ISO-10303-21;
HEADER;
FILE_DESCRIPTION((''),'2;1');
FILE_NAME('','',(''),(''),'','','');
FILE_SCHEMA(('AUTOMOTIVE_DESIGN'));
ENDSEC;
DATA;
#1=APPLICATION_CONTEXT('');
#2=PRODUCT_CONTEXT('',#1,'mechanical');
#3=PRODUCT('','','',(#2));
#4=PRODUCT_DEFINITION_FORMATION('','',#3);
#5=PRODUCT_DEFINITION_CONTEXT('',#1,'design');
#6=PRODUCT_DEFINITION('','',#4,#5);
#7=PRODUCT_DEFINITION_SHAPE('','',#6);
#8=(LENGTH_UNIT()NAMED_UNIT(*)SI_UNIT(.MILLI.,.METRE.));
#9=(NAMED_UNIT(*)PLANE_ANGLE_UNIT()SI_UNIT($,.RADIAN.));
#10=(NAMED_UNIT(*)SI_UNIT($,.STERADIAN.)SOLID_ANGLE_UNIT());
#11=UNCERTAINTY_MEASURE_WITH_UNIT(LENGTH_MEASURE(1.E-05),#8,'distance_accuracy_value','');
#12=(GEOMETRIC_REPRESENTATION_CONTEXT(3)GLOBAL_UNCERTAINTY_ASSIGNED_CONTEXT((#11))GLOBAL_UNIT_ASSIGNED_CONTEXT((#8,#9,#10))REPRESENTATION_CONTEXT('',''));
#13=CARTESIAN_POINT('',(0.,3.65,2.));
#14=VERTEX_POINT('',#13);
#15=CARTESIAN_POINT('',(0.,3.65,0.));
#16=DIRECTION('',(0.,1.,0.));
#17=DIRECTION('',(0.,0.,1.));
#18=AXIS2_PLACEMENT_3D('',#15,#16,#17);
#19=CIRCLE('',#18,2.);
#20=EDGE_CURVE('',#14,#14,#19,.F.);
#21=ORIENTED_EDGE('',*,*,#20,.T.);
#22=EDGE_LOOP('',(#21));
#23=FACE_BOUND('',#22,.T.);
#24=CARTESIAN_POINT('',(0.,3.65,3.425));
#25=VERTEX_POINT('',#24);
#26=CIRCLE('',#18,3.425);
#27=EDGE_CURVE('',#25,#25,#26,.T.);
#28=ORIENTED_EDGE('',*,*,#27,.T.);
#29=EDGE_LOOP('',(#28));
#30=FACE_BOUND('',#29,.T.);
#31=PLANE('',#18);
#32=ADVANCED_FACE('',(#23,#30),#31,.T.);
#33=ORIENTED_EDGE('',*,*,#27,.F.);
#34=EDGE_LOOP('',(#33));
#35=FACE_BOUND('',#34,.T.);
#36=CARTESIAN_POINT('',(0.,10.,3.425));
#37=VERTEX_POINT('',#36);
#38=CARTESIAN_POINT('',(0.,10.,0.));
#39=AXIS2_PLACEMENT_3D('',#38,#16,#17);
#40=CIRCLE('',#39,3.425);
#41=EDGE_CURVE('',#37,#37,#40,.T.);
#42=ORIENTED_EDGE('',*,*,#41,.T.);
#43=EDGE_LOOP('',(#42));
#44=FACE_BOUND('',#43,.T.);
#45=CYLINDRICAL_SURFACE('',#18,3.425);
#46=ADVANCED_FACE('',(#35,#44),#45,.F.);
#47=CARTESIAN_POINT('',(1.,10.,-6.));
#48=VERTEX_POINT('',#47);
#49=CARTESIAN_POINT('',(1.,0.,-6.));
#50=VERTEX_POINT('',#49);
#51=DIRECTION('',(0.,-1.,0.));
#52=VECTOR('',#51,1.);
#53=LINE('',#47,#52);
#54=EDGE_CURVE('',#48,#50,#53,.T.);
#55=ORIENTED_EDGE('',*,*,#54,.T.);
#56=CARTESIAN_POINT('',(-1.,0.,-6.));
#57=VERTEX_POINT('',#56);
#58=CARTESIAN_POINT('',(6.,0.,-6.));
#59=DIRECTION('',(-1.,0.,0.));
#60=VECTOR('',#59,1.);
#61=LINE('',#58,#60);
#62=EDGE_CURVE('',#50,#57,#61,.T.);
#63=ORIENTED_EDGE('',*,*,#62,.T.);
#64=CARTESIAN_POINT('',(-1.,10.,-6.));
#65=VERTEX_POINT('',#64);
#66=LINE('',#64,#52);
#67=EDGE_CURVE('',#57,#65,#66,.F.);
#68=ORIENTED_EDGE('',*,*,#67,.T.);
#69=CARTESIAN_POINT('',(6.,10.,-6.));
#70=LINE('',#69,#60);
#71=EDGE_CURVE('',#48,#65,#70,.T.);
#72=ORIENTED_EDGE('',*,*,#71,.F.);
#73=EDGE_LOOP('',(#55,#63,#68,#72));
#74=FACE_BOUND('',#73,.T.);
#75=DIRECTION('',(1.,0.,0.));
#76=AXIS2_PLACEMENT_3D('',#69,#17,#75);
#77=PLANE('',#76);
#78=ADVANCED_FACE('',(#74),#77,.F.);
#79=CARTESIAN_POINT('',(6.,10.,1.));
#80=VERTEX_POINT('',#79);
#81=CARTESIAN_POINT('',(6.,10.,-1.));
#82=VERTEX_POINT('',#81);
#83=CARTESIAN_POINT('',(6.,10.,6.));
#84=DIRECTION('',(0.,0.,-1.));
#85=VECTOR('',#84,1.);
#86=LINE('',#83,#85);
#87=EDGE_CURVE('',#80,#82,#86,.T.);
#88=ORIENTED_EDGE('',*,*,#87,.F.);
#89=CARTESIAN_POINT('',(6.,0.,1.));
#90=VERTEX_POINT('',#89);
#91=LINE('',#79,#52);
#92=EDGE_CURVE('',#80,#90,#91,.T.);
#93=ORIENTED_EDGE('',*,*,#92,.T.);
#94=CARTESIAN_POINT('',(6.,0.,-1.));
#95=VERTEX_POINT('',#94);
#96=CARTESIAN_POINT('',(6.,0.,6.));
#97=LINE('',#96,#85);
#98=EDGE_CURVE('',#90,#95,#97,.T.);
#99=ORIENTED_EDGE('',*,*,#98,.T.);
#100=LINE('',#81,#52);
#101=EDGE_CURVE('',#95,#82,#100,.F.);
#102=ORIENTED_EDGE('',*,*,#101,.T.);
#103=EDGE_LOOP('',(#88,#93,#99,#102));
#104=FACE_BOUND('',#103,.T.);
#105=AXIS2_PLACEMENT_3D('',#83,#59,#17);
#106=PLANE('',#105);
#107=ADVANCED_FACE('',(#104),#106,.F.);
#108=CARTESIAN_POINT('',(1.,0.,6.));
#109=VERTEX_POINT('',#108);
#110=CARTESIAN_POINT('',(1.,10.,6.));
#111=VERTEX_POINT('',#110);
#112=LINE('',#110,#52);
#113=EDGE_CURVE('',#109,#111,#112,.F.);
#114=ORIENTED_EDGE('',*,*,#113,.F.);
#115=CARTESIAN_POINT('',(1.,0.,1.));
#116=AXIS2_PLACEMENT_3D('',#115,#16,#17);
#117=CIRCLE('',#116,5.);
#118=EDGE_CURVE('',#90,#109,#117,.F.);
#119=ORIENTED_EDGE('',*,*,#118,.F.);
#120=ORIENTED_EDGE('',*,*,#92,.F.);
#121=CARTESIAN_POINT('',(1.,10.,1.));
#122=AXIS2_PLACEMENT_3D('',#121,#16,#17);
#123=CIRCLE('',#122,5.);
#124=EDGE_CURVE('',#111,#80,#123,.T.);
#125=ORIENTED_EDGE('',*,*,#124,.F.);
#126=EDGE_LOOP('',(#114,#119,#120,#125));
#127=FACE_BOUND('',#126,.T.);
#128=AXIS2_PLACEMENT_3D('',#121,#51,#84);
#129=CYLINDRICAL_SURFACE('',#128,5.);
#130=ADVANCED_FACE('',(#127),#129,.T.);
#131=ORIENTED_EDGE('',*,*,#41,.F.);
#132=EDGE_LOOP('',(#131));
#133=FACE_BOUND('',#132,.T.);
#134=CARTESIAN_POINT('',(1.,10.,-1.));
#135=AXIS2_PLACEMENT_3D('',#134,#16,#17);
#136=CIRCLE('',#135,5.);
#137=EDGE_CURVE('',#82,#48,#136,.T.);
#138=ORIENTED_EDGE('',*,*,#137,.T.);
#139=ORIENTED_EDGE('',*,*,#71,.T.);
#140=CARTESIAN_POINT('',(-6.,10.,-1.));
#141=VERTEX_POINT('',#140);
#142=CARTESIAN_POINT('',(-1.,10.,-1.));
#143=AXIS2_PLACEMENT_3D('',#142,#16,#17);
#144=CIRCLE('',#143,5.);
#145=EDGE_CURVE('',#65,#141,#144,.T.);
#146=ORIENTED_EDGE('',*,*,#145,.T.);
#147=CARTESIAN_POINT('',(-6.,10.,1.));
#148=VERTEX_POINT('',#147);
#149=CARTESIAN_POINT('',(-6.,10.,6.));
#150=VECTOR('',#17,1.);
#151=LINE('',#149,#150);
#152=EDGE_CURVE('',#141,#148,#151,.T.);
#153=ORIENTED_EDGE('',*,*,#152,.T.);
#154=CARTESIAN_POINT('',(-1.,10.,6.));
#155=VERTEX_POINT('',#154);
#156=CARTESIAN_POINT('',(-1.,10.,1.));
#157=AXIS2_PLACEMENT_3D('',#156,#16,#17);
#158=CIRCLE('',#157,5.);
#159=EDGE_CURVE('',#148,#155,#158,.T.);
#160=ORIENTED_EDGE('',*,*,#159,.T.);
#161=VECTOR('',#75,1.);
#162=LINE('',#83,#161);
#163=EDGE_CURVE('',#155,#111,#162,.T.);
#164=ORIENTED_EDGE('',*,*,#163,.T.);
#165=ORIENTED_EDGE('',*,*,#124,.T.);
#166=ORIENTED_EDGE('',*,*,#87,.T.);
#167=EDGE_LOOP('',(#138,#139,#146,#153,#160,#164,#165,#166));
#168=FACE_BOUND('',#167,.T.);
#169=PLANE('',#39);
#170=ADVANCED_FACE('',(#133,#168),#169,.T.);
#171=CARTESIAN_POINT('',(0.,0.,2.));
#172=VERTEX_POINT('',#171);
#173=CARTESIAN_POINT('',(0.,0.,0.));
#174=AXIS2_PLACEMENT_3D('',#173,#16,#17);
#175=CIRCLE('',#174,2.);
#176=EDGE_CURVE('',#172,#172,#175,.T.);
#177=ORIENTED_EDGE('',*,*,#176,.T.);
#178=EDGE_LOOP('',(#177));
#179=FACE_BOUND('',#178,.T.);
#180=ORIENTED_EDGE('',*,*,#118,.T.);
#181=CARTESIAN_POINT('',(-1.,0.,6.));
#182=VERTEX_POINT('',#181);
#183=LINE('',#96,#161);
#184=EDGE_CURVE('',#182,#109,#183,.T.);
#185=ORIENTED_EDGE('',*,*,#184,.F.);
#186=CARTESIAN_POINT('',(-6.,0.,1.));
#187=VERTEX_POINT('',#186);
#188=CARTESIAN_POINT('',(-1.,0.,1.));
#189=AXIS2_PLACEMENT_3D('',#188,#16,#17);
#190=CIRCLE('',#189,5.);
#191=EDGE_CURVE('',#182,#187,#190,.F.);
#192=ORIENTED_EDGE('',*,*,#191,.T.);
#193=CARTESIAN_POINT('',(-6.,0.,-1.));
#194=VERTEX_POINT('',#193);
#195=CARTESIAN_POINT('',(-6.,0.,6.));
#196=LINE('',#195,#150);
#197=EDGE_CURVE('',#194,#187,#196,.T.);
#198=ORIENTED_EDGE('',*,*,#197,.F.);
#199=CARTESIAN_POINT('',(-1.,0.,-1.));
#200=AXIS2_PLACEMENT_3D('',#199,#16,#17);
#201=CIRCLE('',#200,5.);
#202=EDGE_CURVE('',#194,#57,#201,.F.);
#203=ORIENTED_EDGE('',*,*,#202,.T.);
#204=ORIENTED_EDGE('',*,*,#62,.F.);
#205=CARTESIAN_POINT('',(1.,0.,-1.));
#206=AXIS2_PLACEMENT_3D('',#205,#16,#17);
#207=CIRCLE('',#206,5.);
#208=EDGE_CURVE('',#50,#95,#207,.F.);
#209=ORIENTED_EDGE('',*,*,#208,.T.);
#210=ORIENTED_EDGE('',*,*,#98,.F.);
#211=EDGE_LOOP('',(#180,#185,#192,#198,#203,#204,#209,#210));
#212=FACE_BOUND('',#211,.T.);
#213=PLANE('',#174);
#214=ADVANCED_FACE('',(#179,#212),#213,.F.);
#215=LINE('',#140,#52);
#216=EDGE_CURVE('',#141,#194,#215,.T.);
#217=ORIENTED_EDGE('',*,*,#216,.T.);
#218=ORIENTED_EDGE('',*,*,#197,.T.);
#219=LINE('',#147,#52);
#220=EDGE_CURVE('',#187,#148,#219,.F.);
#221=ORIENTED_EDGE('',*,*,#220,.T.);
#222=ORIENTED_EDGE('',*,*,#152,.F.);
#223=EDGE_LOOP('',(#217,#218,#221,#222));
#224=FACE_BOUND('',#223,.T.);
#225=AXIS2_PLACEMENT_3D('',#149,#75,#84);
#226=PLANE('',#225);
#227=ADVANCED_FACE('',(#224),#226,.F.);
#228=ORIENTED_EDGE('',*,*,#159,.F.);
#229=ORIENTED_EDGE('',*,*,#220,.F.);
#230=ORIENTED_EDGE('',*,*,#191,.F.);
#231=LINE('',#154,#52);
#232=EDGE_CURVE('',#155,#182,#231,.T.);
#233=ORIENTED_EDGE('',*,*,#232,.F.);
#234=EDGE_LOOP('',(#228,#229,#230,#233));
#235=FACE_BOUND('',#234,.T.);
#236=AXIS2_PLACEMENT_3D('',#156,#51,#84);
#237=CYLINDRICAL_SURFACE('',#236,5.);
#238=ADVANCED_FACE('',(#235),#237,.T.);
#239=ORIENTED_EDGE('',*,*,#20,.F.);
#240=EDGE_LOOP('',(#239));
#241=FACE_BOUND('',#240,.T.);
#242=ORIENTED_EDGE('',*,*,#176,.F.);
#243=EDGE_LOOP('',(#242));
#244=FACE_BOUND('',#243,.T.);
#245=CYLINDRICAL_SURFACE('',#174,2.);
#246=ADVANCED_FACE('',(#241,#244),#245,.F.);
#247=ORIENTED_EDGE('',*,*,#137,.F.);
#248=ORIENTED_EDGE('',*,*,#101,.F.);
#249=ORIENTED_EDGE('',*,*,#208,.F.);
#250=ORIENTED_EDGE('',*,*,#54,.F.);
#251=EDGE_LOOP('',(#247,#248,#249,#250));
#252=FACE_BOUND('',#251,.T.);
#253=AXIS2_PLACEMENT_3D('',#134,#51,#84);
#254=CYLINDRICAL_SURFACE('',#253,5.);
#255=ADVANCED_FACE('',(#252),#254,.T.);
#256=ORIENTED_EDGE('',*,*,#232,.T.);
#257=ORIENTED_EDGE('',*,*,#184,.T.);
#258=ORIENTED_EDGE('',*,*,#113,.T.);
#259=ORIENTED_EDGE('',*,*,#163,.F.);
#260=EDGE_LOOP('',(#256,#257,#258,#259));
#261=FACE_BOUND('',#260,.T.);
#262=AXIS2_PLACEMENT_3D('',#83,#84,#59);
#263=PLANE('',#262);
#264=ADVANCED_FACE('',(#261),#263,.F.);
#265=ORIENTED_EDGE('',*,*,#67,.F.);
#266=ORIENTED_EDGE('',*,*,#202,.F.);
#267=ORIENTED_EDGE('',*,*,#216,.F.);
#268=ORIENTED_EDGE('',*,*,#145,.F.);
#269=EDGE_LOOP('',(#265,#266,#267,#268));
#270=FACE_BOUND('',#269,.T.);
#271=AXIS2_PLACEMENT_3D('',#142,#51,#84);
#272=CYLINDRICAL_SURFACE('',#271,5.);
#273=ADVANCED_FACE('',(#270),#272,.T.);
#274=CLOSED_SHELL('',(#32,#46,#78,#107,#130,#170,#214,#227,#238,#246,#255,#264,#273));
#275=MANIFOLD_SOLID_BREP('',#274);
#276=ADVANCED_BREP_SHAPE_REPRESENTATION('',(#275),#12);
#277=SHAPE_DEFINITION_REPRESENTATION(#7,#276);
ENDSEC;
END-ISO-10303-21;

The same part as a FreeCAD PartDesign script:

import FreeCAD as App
import Part
import Sketcher

V = App.Vector


def edges_at(feature, points):
    """Names of the edges that pass closest to the given points."""
    edges = feature.Shape.Edges
    near = lambda p: min(range(len(edges)), key=lambda i: edges[i].distToShape(Part.Vertex(*p))[0])
    return sorted({f"Edge{near(p) + 1}" for p in points})


def add_polygon(sketch, points):
    """Adds a closed chain of lines whose ends are joined by coincident constraints."""
    first, n = sketch.GeometryCount, len(points)
    for a, b in zip(points, points[1:] + points[:1]):
        sketch.addGeometry(Part.LineSegment(App.Vector(*a, 0), App.Vector(*b, 0)), False)
    for i in range(n):
        sketch.addConstraint(Sketcher.Constraint("Coincident", first + i, 2, first + (i + 1) % n, 1))

doc = App.newDocument("Part")
body = doc.addObject("PartDesign::Body", "Body")

# Sketch on XZ plane
sketch1 = body.newObject("Sketcher::SketchObject", "Sketch")
sketch1.AttachmentSupport = (doc.getObject("XZ_Plane"), [""])
sketch1.MapMode = "FlatFace"
add_polygon(sketch1, [(-6, -6), (-6, 6), (6, 6), (6, -6)])  # lines 0-3
sketch1.addConstraint(Sketcher.Constraint("Vertical", 0))
sketch1.addConstraint(Sketcher.Constraint("Horizontal", 1))
sketch1.addConstraint(Sketcher.Constraint("Vertical", 2))
sketch1.addConstraint(Sketcher.Constraint("Horizontal", 3))
sketch1.addConstraint(Sketcher.Constraint("Symmetric", 0, 2, 2, 2, -1, 1))
sketch1.addConstraint(Sketcher.Constraint("Equal", 3, 0))
sketch1.addConstraint(Sketcher.Constraint("DistanceX", 1, 1, 1, 2, 12.0))
pad1 = body.newObject("PartDesign::Pad", "Pad")
pad1.Profile = sketch1
pad1.Length = 10
pad1.Reversed = True
doc.recompute()

fillet = body.newObject("PartDesign::Fillet", "Fillet")
fillet.Base = (pad1, edges_at(pad1, [
    (-6, 5, -6),
    (6, 5, -6),
    (6, 5, 6),
    (-6, 5, 6),
]))
fillet.Radius = 5

# Sketch on XZ plane
sketch2 = body.newObject("Sketcher::SketchObject", "Sketch001")
sketch2.AttachmentSupport = (doc.getObject("XZ_Plane"), [""])
sketch2.MapMode = "FlatFace"
sketch2.AttachmentOffset = App.Placement(V(0, 0, -10), App.Rotation())
sketch2.addGeometry(Part.Circle(V(0, 0, 0), V(0, 0, 1), 2), False)
sketch2.addConstraint(Sketcher.Constraint("Coincident", 0, 3, -1, 1))
sketch2.addConstraint(Sketcher.Constraint("Diameter", 0, 4.0))
pocket1 = body.newObject("PartDesign::Pocket", "Pocket")
pocket1.Profile = sketch2
pocket1.Type = "ThroughAll"
pocket1.Reversed = True

# Sketch on XZ plane
sketch3 = body.newObject("Sketcher::SketchObject", "Sketch002")
sketch3.AttachmentSupport = (doc.getObject("XZ_Plane"), [""])
sketch3.MapMode = "FlatFace"
sketch3.AttachmentOffset = App.Placement(V(0, 0, -10), App.Rotation())
sketch3.addGeometry(Part.Circle(V(0, 0, 0), V(0, 0, 1), 3.4), False)
sketch3.addConstraint(Sketcher.Constraint("Coincident", 0, 3, -1, 1))
sketch3.addConstraint(Sketcher.Constraint("Diameter", 0, 6.85))
pocket2 = body.newObject("PartDesign::Pocket", "Pocket001")
pocket2.Profile = sketch3
pocket2.Length = 6.35
pocket2.Reversed = True

doc.recompute()
